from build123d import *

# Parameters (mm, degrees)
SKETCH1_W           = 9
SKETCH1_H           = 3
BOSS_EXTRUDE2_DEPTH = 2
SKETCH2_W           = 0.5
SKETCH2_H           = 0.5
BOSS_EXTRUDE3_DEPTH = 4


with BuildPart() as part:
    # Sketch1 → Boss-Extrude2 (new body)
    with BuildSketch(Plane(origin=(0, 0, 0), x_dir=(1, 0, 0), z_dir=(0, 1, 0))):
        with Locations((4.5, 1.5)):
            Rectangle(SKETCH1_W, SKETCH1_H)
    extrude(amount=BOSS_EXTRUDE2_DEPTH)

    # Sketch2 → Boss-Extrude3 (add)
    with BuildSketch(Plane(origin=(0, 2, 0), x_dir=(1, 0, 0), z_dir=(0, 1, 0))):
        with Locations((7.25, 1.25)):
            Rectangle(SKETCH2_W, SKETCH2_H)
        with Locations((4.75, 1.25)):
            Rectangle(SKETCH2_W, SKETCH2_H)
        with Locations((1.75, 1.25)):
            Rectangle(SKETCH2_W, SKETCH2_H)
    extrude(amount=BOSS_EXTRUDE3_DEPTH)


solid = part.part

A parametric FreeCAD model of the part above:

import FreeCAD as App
import Part
import Sketcher
from FreeCAD import Vector


def add_polygon(sketch, points):
    """Adds a closed chain of lines whose ends are joined by coincident constraints."""
    first, n = sketch.GeometryCount, len(points)
    for a, b in zip(points, points[1:] + points[:1]):
        sketch.addGeometry(Part.LineSegment(App.Vector(*a, 0), App.Vector(*b, 0)), False)
    for i in range(n):
        sketch.addConstraint(Sketcher.Constraint("Coincident", first + i, 2, first + (i + 1) % n, 1))

doc = App.newDocument("Part")
body = doc.addObject("PartDesign::Body", "Body")

# Sketch on XZ plane
sketch1 = body.newObject("Sketcher::SketchObject", "Sketch")
sketch1.AttachmentSupport = (doc.getObject("XZ_Plane"), [""])
sketch1.MapMode = "FlatFace"
add_polygon(sketch1, [(0, -3), (0, 0), (9, 0), (9, -3)])  # lines 0-3
sketch1.addConstraint(Sketcher.Constraint("Vertical", 0))
sketch1.addConstraint(Sketcher.Constraint("Horizontal", 1))
sketch1.addConstraint(Sketcher.Constraint("Vertical", 2))
sketch1.addConstraint(Sketcher.Constraint("Horizontal", 3))
sketch1.addConstraint(Sketcher.Constraint("Coincident", 0, 2, -1, 1))
sketch1.addConstraint(Sketcher.Constraint("DistanceX", 1, 1, 1, 2, 9.0))
sketch1.addConstraint(Sketcher.Constraint("DistanceY", 0, 1, 0, 2, 3.0))
pad1 = body.newObject("PartDesign::Pad", "Pad")
pad1.Profile = sketch1
pad1.Length = 2
pad1.Reversed = True

# Sketch on XZ plane
sketch2 = body.newObject("Sketcher::SketchObject", "Sketch001")
sketch2.AttachmentSupport = (doc.getObject("XZ_Plane"), [""])
sketch2.MapMode = "FlatFace"
sketch2.AttachmentOffset = App.Placement(Vector(0, 0, -2), App.Rotation())
add_polygon(sketch2, [(7, -1.5), (7, -1), (7.5, -1), (7.5, -1.5)])  # lines 0-3
add_polygon(sketch2, [(4.5, -1.5), (4.5, -1), (5, -1), (5, -1.5)])  # lines 4-7
add_polygon(sketch2, [(1.5, -1.5), (1.5, -1), (2, -1), (2, -1.5)])  # lines 8-11
sketch2.addConstraint(Sketcher.Constraint("Vertical", 0))
sketch2.addConstraint(Sketcher.Constraint("Horizontal", 1))
sketch2.addConstraint(Sketcher.Constraint("Vertical", 2))
sketch2.addConstraint(Sketcher.Constraint("Horizontal", 3))
sketch2.addConstraint(Sketcher.Constraint("Vertical", 4))
sketch2.addConstraint(Sketcher.Constraint("Horizontal", 5))
sketch2.addConstraint(Sketcher.Constraint("Vertical", 6))
sketch2.addConstraint(Sketcher.Constraint("Horizontal", 7))
sketch2.addConstraint(Sketcher.Constraint("Vertical", 8))
sketch2.addConstraint(Sketcher.Constraint("Horizontal", 9))
sketch2.addConstraint(Sketcher.Constraint("Vertical", 10))
sketch2.addConstraint(Sketcher.Constraint("Horizontal", 11))
sketch2.addConstraint(Sketcher.Constraint("Horizontal", 1, 2, 4, 2))
sketch2.addConstraint(Sketcher.Constraint("Horizontal", 3, 2, 6, 2))
sketch2.addConstraint(Sketcher.Constraint("Horizontal", 5, 2, 8, 2))
sketch2.addConstraint(Sketcher.Constraint("Horizontal", 7, 2, 10, 2))
sketch2.addConstraint(Sketcher.Constraint("Equal", 3, 5))
sketch2.addConstraint(Sketcher.Constraint("Equal", 7, 9))
sketch2.addConstraint(Sketcher.Constraint("Equal", 11, 0))
sketch2.addConstraint(Sketcher.Constraint("DistanceX", 1, 1, 1, 2, 0.5))
sketch2.addConstraint(Sketcher.Constraint("DistanceX", -1, 1, 0, 2, 7.0))
sketch2.addConstraint(Sketcher.Constraint("DistanceY", 0, 2, -1, 1, 1.0))
sketch2.addConstraint(Sketcher.Constraint("DistanceX", -1, 1, 5, 2, 5.0))
sketch2.addConstraint(Sketcher.Constraint("DistanceX", -1, 1, 9, 2, 2.0))
pad2 = body.newObject("PartDesign::Pad", "Pad001")
pad2.Profile = sketch2
pad2.Length = 4
pad2.Reversed = True

doc.recompute()
